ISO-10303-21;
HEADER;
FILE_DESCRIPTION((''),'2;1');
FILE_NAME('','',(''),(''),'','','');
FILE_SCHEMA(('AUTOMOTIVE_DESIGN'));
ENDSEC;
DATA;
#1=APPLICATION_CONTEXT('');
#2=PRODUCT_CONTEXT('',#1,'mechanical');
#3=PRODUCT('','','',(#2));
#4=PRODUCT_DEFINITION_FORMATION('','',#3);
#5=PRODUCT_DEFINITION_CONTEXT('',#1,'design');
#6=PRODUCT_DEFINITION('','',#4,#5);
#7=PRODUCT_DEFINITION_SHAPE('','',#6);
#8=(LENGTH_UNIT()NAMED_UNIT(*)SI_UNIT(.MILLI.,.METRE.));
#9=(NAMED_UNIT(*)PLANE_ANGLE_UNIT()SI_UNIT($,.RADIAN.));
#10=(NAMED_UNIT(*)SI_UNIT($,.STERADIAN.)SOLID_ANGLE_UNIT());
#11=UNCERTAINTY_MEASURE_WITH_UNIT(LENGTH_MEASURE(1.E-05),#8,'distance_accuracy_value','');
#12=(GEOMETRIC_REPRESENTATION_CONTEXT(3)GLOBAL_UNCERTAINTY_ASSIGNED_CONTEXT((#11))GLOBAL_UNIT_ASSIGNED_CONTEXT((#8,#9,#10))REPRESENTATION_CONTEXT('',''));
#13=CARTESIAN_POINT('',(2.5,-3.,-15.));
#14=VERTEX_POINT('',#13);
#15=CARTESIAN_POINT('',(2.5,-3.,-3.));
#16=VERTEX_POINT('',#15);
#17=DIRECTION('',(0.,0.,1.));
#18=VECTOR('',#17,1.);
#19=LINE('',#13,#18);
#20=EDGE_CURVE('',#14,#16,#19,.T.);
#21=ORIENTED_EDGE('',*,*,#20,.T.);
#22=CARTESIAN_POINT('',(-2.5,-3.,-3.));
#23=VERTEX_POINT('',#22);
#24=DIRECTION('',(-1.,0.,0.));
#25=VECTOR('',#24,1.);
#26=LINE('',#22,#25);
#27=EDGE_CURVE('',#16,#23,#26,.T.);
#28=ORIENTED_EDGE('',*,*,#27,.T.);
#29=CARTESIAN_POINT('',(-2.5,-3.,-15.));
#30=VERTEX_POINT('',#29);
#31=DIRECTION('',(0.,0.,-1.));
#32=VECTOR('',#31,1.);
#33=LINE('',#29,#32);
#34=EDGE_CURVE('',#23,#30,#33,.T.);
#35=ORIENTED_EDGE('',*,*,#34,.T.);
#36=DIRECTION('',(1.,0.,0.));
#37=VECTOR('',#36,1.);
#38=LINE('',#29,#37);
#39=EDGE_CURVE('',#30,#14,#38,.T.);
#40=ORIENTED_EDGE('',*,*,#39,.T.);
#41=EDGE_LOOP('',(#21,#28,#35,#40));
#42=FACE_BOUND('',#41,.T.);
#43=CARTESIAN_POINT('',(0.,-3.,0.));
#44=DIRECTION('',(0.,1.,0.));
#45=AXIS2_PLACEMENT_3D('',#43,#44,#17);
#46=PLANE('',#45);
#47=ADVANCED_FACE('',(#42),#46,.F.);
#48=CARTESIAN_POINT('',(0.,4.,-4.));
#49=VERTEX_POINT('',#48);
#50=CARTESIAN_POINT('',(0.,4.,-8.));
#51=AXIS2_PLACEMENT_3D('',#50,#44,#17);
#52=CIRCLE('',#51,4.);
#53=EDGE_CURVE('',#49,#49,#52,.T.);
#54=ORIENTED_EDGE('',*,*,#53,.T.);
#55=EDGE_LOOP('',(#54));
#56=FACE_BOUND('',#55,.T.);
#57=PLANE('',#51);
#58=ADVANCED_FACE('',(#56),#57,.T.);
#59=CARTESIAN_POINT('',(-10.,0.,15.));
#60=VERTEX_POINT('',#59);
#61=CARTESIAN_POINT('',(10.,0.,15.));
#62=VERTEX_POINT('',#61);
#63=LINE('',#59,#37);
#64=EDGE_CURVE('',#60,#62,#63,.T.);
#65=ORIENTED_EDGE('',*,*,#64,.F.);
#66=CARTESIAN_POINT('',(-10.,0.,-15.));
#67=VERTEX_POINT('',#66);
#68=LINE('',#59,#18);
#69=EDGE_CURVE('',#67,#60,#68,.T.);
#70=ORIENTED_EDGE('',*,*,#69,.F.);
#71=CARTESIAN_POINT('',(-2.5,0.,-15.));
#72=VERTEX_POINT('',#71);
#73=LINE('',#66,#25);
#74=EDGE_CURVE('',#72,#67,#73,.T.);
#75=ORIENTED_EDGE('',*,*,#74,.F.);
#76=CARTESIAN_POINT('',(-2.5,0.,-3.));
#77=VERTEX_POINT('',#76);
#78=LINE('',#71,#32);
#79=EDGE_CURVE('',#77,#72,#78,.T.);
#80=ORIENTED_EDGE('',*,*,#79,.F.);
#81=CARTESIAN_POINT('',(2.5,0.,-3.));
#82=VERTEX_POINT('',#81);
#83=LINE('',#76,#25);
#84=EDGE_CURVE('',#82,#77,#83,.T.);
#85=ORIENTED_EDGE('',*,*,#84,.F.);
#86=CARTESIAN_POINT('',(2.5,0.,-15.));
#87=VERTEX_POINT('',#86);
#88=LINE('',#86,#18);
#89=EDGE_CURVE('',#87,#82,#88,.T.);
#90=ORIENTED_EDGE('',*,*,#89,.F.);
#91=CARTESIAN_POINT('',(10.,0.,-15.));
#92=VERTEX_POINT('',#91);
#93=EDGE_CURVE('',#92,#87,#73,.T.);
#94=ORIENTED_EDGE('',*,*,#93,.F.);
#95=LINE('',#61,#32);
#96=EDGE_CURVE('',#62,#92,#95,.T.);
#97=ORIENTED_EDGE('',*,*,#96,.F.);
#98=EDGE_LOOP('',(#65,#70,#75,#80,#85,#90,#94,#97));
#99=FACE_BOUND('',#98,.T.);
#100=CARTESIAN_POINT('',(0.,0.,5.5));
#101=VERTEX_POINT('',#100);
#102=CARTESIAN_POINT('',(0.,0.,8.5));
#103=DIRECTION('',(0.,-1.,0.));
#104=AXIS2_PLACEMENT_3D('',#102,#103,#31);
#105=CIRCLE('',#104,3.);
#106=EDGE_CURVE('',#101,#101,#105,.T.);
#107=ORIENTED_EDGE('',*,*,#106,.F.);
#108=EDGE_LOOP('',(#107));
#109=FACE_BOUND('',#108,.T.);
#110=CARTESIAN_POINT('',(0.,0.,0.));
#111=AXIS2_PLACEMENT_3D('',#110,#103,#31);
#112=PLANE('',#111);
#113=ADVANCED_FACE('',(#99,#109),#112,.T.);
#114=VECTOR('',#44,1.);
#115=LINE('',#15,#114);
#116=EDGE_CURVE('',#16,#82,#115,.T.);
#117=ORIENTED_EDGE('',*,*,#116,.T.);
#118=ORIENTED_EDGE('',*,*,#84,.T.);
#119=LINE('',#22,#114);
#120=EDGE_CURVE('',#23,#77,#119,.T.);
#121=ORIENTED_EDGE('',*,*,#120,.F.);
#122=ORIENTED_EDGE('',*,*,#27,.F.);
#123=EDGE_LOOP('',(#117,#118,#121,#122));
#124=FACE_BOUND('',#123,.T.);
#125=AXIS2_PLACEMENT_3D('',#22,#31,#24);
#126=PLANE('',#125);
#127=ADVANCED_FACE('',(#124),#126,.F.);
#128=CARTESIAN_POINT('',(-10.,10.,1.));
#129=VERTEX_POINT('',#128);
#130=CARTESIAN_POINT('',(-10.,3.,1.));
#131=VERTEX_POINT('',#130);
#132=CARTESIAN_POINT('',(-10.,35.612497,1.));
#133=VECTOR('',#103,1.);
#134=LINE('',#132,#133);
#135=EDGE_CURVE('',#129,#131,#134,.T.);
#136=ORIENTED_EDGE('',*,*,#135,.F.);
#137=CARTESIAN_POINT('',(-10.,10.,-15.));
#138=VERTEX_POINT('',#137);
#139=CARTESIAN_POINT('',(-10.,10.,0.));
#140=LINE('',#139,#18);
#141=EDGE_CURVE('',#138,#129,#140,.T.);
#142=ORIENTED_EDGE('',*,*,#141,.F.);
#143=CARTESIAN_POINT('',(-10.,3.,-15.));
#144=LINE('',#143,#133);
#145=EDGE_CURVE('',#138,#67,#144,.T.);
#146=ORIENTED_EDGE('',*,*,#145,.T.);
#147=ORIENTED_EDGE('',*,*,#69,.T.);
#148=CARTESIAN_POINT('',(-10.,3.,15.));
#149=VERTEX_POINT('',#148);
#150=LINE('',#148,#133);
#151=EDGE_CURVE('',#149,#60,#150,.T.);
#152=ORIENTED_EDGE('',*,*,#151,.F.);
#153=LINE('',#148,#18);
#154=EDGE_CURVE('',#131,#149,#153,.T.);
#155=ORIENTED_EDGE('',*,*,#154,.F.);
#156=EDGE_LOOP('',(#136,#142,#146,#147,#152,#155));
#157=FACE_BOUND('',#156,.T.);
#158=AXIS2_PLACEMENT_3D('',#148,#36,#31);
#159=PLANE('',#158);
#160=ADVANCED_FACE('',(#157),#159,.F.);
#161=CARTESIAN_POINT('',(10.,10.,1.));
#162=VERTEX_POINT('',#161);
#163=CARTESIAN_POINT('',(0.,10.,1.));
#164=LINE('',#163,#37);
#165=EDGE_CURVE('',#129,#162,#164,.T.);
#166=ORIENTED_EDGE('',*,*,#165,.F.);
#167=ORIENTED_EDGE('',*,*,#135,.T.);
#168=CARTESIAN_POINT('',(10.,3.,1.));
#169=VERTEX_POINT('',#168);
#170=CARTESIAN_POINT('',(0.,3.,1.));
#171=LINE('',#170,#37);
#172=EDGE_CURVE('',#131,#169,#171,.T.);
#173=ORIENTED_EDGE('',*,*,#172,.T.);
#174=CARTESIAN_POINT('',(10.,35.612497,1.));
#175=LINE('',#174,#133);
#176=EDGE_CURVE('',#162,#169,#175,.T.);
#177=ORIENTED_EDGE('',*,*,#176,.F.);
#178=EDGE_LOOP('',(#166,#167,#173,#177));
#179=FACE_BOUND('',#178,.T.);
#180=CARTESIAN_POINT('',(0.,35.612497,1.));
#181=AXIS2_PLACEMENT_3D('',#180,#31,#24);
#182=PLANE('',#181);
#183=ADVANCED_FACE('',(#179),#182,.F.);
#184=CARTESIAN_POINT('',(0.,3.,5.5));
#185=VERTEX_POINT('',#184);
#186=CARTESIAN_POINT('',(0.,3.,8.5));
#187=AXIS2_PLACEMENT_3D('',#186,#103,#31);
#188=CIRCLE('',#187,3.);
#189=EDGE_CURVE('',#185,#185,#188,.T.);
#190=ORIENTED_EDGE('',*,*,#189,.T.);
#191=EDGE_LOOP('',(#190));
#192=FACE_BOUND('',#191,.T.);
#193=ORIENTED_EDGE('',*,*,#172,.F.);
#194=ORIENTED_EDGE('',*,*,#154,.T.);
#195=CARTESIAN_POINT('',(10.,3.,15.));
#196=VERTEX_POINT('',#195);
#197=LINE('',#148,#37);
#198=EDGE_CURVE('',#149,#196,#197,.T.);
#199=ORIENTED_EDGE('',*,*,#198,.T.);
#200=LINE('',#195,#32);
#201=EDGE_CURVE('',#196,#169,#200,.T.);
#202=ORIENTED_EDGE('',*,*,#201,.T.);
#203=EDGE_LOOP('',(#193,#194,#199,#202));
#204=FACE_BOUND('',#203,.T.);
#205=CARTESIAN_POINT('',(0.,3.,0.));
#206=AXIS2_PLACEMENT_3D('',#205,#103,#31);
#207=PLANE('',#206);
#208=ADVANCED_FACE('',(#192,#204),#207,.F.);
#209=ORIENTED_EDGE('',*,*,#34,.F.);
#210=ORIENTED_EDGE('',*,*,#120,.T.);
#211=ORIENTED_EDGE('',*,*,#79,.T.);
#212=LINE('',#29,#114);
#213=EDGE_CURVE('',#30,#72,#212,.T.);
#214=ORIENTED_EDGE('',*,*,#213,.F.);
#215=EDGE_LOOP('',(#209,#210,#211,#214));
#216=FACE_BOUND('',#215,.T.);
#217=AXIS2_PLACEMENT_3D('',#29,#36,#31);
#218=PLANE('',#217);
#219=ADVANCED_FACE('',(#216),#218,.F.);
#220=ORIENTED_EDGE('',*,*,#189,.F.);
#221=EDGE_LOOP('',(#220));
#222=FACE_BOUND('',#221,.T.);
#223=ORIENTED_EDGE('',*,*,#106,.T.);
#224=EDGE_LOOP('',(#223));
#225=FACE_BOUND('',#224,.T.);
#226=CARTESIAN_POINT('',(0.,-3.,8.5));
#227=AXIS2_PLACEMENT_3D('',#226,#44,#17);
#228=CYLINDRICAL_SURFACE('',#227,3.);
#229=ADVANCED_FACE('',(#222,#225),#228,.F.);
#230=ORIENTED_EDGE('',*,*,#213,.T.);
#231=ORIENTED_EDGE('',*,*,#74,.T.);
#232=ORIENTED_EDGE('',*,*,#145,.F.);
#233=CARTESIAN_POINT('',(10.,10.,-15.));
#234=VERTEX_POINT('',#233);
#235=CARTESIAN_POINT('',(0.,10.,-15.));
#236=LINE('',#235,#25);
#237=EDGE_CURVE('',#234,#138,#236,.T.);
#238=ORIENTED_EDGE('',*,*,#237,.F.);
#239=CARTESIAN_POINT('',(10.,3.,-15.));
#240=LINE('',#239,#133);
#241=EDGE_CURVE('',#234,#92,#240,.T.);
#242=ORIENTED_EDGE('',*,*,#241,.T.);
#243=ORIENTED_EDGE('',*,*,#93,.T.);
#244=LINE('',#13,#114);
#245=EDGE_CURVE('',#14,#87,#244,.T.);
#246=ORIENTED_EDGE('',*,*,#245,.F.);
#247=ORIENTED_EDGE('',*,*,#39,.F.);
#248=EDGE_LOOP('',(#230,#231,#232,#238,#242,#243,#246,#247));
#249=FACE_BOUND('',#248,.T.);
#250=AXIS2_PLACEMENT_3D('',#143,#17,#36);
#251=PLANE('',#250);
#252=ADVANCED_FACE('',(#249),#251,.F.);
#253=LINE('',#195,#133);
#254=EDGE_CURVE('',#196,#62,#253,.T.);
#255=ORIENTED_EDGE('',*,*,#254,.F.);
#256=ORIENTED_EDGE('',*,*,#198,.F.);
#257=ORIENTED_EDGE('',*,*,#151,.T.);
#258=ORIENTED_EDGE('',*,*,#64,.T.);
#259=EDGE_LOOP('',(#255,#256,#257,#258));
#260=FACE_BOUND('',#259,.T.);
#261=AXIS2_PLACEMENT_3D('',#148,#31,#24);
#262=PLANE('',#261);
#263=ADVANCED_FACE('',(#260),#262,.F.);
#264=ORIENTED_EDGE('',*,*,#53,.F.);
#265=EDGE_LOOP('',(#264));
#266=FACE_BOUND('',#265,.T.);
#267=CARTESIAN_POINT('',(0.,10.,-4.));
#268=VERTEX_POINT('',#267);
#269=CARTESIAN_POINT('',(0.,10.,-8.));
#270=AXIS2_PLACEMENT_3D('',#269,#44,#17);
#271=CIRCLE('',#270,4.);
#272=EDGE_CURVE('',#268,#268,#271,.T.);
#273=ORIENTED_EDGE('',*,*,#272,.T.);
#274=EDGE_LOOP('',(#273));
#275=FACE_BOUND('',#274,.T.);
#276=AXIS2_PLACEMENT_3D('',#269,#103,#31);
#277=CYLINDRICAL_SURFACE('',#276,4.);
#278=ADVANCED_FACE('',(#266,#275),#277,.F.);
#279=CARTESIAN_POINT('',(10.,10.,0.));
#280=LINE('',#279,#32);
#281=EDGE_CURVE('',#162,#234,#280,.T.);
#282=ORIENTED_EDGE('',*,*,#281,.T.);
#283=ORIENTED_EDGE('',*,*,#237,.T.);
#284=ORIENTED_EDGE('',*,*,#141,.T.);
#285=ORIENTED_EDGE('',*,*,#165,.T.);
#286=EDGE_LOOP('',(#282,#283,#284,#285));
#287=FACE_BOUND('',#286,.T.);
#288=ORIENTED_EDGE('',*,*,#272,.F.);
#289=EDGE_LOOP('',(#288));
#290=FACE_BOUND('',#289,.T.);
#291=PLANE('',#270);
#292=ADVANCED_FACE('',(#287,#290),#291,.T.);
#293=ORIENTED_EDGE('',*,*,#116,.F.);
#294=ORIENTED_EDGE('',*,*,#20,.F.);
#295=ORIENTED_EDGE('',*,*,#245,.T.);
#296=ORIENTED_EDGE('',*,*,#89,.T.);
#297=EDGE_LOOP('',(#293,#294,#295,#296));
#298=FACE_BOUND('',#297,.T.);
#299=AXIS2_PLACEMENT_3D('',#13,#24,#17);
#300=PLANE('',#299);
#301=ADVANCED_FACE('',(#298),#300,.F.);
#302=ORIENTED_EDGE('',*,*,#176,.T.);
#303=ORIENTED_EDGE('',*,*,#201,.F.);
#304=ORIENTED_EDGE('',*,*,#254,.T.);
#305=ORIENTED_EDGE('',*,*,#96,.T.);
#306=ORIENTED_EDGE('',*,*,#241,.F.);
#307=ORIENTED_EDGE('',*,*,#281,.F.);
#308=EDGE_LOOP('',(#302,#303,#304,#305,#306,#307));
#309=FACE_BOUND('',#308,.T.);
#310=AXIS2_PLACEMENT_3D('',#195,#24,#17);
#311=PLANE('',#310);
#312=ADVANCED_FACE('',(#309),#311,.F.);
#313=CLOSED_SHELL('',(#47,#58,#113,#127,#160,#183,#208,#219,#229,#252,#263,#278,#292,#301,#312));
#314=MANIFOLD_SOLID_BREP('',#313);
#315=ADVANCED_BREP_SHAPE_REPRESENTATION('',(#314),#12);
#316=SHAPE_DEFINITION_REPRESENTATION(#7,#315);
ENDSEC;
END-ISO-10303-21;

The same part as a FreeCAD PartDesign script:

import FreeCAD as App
import Part
import Sketcher

V = App.Vector


def add_polygon(sketch, points):
    """Adds a closed chain of lines whose ends are joined by coincident constraints."""
    first, n = sketch.GeometryCount, len(points)
    for a, b in zip(points, points[1:] + points[:1]):
        sketch.addGeometry(Part.LineSegment(App.Vector(*a, 0), App.Vector(*b, 0)), False)
    for i in range(n):
        sketch.addConstraint(Sketcher.Constraint("Coincident", first + i, 2, first + (i + 1) % n, 1))

doc = App.newDocument("Part")
body = doc.addObject("PartDesign::Body", "Body")

# Sketch on XZ plane
sketch1 = body.newObject("Sketcher::SketchObject", "Sketch")
sketch1.AttachmentSupport = (doc.getObject("XZ_Plane"), [""])
sketch1.MapMode = "FlatFace"
add_polygon(sketch1, [(-10, -15), (-10, 15), (10, 15), (10, -15)])  # lines 0-3
sketch1.addConstraint([
    Sketcher.Constraint("Vertical", 0),
    Sketcher.Constraint("Horizontal", 1),
    Sketcher.Constraint("Vertical", 2),
    Sketcher.Constraint("Horizontal", 3),
    Sketcher.Constraint("Symmetric", 0, 2, 2, 2, -1, 1),
    Sketcher.Constraint("DistanceX", 1, 1, 1, 2, 20.0),
    Sketcher.Constraint("DistanceY", 0, 1, 0, 2, 30.0),
])
pad1 = body.newObject("PartDesign::Pad", "Pad")
pad1.Profile = sketch1
pad1.Length = 3
pad1.Reversed = True

# Sketch on XZ plane
sketch2 = body.newObject("Sketcher::SketchObject", "Sketch001")
sketch2.AttachmentSupport = (doc.getObject("XZ_Plane"), [""])
sketch2.MapMode = "FlatFace"
add_polygon(sketch2, [(-2, -3), (-2, -15), (2, -15), (2, -3)])  # lines 0-3
sketch2.addConstraint([
    Sketcher.Constraint("Vertical", 0),
    Sketcher.Constraint("Horizontal", 1),
    Sketcher.Constraint("Vertical", 2),
    Sketcher.Constraint("Horizontal", 3),
    Sketcher.Constraint("DistanceX", 1, 1, 1, 2, 5.0),
    Sketcher.Constraint("DistanceY", 0, 2, 0, 1, 12.0),
    Sketcher.Constraint("DistanceY", 0, 2, -1, 1, 15.0),
    Sketcher.Constraint("DistanceX", 0, 2, -1, 1, 2.5),
])
pad2 = body.newObject("PartDesign::Pad", "Pad001")
pad2.Profile = sketch2
pad2.Length = 3

# Sketch on XZ plane
sketch3 = body.newObject("Sketcher::SketchObject", "Sketch002")
sketch3.AttachmentSupport = (doc.getObject("XZ_Plane"), [""])
sketch3.MapMode = "FlatFace"
sketch3.AttachmentOffset = App.Placement(V(0, 0, -3), App.Rotation())
sketch3.addGeometry([
    Part.Circle(V(0, -8, 0), V(0, 0, 1), 7),
    Part.Circle(V(0, -8, 0), V(0, 0, 1), 4),
], False)
sketch3.addConstraint([
    Sketcher.Constraint("Coincident", 1, 3, 0, 3),
    Sketcher.Constraint("PointOnObject", 0, 3, -2),
    Sketcher.Constraint("Diameter", 0, 14.0),
    Sketcher.Constraint("Diameter", 1, 8.0),
    Sketcher.Constraint("DistanceY", 0, 3, -1, 1, 8.0),
])
pad3 = body.newObject("PartDesign::Pad", "Pad002")
pad3.Profile = sketch3
pad3.Length = 7
pad3.Reversed = True

# Sketch on XZ plane
sketch4 = body.newObject("Sketcher::SketchObject", "Sketch003")
sketch4.AttachmentSupport = (doc.getObject("XZ_Plane"), [""])
sketch4.MapMode = "FlatFace"
sketch4.AttachmentOffset = App.Placement(V(0, 0, -3), App.Rotation())
sketch4.addGeometry(Part.Circle(V(0, -8, 0), V(0, 0, 1), 4), False)
sketch4.addConstraint([
    Sketcher.Constraint("PointOnObject", 0, 3, -2),
    Sketcher.Constraint("Diameter", 0, 8.0),
    Sketcher.Constraint("DistanceY", 0, 3, -1, 1, 8.0),
])
pad4 = body.newObject("PartDesign::Pad", "Pad003")
pad4.Profile = sketch4
pad4.Length = 1
pad4.Reversed = True

# Sketch on XZ plane
sketch5 = body.newObject("Sketcher::SketchObject", "Sketch004")
sketch5.AttachmentSupport = (doc.getObject("XZ_Plane"), [""])
sketch5.MapMode = "FlatFace"
sketch5.AttachmentOffset = App.Placement(V(0, 0, -3), App.Rotation())
sketch5.addGeometry(Part.Circle(V(0, 8.5, 0), V(0, 0, 1), 3), False)
sketch5.addConstraint([
    Sketcher.Constraint("PointOnObject", 0, 3, -2),
    Sketcher.Constraint("Diameter", 0, 6.0),
    Sketcher.Constraint("DistanceY", -1, 1, 0, 3, 8.5),
])
pocket1 = body.newObject("PartDesign::Pocket", "Pocket")
pocket1.Profile = sketch5
pocket1.Type = "ThroughAll"
pocket1.Midplane = True

# Sketch on XZ plane
sketch6 = body.newObject("Sketcher::SketchObject", "Sketch005")
sketch6.AttachmentSupport = (doc.getObject("XZ_Plane"), [""])
sketch6.MapMode = "FlatFace"
sketch6.AttachmentOffset = App.Placement(V(0, 0, -3), App.Rotation())
add_polygon(sketch6, [(10, -15), (-10, -15), (-10, 1), (10, 1)])  # lines 0-3
sketch6.addGeometry(Part.Circle(V(0, -8, 0), V(0, 0, 1), 4), False)  # 4
sketch6.addConstraint([
    Sketcher.Constraint("Horizontal", 0),
    Sketcher.Constraint("Vertical", 1),
    Sketcher.Constraint("Horizontal", 2),
    Sketcher.Constraint("Vertical", 3),
    Sketcher.Constraint("PointOnObject", 4, 3, -2),
    Sketcher.Constraint("Diameter", 4, 8.0),
    Sketcher.Constraint("DistanceX", 0, 2, 0, 1, 20.0),
    Sketcher.Constraint("DistanceY", 1, 1, 1, 2, 16.0),
    Sketcher.Constraint("DistanceY", 4, 3, -1, 1, 8.0),
    Sketcher.Constraint("DistanceX", 0, 2, -1, 1, 10.0),
    Sketcher.Constraint("DistanceY", 0, 2, -1, 1, 15.0),
])
pad5 = body.newObject("PartDesign::Pad", "Pad004")
pad5.Profile = sketch6
pad5.Length = 7
pad5.Reversed = True

doc.recompute()
